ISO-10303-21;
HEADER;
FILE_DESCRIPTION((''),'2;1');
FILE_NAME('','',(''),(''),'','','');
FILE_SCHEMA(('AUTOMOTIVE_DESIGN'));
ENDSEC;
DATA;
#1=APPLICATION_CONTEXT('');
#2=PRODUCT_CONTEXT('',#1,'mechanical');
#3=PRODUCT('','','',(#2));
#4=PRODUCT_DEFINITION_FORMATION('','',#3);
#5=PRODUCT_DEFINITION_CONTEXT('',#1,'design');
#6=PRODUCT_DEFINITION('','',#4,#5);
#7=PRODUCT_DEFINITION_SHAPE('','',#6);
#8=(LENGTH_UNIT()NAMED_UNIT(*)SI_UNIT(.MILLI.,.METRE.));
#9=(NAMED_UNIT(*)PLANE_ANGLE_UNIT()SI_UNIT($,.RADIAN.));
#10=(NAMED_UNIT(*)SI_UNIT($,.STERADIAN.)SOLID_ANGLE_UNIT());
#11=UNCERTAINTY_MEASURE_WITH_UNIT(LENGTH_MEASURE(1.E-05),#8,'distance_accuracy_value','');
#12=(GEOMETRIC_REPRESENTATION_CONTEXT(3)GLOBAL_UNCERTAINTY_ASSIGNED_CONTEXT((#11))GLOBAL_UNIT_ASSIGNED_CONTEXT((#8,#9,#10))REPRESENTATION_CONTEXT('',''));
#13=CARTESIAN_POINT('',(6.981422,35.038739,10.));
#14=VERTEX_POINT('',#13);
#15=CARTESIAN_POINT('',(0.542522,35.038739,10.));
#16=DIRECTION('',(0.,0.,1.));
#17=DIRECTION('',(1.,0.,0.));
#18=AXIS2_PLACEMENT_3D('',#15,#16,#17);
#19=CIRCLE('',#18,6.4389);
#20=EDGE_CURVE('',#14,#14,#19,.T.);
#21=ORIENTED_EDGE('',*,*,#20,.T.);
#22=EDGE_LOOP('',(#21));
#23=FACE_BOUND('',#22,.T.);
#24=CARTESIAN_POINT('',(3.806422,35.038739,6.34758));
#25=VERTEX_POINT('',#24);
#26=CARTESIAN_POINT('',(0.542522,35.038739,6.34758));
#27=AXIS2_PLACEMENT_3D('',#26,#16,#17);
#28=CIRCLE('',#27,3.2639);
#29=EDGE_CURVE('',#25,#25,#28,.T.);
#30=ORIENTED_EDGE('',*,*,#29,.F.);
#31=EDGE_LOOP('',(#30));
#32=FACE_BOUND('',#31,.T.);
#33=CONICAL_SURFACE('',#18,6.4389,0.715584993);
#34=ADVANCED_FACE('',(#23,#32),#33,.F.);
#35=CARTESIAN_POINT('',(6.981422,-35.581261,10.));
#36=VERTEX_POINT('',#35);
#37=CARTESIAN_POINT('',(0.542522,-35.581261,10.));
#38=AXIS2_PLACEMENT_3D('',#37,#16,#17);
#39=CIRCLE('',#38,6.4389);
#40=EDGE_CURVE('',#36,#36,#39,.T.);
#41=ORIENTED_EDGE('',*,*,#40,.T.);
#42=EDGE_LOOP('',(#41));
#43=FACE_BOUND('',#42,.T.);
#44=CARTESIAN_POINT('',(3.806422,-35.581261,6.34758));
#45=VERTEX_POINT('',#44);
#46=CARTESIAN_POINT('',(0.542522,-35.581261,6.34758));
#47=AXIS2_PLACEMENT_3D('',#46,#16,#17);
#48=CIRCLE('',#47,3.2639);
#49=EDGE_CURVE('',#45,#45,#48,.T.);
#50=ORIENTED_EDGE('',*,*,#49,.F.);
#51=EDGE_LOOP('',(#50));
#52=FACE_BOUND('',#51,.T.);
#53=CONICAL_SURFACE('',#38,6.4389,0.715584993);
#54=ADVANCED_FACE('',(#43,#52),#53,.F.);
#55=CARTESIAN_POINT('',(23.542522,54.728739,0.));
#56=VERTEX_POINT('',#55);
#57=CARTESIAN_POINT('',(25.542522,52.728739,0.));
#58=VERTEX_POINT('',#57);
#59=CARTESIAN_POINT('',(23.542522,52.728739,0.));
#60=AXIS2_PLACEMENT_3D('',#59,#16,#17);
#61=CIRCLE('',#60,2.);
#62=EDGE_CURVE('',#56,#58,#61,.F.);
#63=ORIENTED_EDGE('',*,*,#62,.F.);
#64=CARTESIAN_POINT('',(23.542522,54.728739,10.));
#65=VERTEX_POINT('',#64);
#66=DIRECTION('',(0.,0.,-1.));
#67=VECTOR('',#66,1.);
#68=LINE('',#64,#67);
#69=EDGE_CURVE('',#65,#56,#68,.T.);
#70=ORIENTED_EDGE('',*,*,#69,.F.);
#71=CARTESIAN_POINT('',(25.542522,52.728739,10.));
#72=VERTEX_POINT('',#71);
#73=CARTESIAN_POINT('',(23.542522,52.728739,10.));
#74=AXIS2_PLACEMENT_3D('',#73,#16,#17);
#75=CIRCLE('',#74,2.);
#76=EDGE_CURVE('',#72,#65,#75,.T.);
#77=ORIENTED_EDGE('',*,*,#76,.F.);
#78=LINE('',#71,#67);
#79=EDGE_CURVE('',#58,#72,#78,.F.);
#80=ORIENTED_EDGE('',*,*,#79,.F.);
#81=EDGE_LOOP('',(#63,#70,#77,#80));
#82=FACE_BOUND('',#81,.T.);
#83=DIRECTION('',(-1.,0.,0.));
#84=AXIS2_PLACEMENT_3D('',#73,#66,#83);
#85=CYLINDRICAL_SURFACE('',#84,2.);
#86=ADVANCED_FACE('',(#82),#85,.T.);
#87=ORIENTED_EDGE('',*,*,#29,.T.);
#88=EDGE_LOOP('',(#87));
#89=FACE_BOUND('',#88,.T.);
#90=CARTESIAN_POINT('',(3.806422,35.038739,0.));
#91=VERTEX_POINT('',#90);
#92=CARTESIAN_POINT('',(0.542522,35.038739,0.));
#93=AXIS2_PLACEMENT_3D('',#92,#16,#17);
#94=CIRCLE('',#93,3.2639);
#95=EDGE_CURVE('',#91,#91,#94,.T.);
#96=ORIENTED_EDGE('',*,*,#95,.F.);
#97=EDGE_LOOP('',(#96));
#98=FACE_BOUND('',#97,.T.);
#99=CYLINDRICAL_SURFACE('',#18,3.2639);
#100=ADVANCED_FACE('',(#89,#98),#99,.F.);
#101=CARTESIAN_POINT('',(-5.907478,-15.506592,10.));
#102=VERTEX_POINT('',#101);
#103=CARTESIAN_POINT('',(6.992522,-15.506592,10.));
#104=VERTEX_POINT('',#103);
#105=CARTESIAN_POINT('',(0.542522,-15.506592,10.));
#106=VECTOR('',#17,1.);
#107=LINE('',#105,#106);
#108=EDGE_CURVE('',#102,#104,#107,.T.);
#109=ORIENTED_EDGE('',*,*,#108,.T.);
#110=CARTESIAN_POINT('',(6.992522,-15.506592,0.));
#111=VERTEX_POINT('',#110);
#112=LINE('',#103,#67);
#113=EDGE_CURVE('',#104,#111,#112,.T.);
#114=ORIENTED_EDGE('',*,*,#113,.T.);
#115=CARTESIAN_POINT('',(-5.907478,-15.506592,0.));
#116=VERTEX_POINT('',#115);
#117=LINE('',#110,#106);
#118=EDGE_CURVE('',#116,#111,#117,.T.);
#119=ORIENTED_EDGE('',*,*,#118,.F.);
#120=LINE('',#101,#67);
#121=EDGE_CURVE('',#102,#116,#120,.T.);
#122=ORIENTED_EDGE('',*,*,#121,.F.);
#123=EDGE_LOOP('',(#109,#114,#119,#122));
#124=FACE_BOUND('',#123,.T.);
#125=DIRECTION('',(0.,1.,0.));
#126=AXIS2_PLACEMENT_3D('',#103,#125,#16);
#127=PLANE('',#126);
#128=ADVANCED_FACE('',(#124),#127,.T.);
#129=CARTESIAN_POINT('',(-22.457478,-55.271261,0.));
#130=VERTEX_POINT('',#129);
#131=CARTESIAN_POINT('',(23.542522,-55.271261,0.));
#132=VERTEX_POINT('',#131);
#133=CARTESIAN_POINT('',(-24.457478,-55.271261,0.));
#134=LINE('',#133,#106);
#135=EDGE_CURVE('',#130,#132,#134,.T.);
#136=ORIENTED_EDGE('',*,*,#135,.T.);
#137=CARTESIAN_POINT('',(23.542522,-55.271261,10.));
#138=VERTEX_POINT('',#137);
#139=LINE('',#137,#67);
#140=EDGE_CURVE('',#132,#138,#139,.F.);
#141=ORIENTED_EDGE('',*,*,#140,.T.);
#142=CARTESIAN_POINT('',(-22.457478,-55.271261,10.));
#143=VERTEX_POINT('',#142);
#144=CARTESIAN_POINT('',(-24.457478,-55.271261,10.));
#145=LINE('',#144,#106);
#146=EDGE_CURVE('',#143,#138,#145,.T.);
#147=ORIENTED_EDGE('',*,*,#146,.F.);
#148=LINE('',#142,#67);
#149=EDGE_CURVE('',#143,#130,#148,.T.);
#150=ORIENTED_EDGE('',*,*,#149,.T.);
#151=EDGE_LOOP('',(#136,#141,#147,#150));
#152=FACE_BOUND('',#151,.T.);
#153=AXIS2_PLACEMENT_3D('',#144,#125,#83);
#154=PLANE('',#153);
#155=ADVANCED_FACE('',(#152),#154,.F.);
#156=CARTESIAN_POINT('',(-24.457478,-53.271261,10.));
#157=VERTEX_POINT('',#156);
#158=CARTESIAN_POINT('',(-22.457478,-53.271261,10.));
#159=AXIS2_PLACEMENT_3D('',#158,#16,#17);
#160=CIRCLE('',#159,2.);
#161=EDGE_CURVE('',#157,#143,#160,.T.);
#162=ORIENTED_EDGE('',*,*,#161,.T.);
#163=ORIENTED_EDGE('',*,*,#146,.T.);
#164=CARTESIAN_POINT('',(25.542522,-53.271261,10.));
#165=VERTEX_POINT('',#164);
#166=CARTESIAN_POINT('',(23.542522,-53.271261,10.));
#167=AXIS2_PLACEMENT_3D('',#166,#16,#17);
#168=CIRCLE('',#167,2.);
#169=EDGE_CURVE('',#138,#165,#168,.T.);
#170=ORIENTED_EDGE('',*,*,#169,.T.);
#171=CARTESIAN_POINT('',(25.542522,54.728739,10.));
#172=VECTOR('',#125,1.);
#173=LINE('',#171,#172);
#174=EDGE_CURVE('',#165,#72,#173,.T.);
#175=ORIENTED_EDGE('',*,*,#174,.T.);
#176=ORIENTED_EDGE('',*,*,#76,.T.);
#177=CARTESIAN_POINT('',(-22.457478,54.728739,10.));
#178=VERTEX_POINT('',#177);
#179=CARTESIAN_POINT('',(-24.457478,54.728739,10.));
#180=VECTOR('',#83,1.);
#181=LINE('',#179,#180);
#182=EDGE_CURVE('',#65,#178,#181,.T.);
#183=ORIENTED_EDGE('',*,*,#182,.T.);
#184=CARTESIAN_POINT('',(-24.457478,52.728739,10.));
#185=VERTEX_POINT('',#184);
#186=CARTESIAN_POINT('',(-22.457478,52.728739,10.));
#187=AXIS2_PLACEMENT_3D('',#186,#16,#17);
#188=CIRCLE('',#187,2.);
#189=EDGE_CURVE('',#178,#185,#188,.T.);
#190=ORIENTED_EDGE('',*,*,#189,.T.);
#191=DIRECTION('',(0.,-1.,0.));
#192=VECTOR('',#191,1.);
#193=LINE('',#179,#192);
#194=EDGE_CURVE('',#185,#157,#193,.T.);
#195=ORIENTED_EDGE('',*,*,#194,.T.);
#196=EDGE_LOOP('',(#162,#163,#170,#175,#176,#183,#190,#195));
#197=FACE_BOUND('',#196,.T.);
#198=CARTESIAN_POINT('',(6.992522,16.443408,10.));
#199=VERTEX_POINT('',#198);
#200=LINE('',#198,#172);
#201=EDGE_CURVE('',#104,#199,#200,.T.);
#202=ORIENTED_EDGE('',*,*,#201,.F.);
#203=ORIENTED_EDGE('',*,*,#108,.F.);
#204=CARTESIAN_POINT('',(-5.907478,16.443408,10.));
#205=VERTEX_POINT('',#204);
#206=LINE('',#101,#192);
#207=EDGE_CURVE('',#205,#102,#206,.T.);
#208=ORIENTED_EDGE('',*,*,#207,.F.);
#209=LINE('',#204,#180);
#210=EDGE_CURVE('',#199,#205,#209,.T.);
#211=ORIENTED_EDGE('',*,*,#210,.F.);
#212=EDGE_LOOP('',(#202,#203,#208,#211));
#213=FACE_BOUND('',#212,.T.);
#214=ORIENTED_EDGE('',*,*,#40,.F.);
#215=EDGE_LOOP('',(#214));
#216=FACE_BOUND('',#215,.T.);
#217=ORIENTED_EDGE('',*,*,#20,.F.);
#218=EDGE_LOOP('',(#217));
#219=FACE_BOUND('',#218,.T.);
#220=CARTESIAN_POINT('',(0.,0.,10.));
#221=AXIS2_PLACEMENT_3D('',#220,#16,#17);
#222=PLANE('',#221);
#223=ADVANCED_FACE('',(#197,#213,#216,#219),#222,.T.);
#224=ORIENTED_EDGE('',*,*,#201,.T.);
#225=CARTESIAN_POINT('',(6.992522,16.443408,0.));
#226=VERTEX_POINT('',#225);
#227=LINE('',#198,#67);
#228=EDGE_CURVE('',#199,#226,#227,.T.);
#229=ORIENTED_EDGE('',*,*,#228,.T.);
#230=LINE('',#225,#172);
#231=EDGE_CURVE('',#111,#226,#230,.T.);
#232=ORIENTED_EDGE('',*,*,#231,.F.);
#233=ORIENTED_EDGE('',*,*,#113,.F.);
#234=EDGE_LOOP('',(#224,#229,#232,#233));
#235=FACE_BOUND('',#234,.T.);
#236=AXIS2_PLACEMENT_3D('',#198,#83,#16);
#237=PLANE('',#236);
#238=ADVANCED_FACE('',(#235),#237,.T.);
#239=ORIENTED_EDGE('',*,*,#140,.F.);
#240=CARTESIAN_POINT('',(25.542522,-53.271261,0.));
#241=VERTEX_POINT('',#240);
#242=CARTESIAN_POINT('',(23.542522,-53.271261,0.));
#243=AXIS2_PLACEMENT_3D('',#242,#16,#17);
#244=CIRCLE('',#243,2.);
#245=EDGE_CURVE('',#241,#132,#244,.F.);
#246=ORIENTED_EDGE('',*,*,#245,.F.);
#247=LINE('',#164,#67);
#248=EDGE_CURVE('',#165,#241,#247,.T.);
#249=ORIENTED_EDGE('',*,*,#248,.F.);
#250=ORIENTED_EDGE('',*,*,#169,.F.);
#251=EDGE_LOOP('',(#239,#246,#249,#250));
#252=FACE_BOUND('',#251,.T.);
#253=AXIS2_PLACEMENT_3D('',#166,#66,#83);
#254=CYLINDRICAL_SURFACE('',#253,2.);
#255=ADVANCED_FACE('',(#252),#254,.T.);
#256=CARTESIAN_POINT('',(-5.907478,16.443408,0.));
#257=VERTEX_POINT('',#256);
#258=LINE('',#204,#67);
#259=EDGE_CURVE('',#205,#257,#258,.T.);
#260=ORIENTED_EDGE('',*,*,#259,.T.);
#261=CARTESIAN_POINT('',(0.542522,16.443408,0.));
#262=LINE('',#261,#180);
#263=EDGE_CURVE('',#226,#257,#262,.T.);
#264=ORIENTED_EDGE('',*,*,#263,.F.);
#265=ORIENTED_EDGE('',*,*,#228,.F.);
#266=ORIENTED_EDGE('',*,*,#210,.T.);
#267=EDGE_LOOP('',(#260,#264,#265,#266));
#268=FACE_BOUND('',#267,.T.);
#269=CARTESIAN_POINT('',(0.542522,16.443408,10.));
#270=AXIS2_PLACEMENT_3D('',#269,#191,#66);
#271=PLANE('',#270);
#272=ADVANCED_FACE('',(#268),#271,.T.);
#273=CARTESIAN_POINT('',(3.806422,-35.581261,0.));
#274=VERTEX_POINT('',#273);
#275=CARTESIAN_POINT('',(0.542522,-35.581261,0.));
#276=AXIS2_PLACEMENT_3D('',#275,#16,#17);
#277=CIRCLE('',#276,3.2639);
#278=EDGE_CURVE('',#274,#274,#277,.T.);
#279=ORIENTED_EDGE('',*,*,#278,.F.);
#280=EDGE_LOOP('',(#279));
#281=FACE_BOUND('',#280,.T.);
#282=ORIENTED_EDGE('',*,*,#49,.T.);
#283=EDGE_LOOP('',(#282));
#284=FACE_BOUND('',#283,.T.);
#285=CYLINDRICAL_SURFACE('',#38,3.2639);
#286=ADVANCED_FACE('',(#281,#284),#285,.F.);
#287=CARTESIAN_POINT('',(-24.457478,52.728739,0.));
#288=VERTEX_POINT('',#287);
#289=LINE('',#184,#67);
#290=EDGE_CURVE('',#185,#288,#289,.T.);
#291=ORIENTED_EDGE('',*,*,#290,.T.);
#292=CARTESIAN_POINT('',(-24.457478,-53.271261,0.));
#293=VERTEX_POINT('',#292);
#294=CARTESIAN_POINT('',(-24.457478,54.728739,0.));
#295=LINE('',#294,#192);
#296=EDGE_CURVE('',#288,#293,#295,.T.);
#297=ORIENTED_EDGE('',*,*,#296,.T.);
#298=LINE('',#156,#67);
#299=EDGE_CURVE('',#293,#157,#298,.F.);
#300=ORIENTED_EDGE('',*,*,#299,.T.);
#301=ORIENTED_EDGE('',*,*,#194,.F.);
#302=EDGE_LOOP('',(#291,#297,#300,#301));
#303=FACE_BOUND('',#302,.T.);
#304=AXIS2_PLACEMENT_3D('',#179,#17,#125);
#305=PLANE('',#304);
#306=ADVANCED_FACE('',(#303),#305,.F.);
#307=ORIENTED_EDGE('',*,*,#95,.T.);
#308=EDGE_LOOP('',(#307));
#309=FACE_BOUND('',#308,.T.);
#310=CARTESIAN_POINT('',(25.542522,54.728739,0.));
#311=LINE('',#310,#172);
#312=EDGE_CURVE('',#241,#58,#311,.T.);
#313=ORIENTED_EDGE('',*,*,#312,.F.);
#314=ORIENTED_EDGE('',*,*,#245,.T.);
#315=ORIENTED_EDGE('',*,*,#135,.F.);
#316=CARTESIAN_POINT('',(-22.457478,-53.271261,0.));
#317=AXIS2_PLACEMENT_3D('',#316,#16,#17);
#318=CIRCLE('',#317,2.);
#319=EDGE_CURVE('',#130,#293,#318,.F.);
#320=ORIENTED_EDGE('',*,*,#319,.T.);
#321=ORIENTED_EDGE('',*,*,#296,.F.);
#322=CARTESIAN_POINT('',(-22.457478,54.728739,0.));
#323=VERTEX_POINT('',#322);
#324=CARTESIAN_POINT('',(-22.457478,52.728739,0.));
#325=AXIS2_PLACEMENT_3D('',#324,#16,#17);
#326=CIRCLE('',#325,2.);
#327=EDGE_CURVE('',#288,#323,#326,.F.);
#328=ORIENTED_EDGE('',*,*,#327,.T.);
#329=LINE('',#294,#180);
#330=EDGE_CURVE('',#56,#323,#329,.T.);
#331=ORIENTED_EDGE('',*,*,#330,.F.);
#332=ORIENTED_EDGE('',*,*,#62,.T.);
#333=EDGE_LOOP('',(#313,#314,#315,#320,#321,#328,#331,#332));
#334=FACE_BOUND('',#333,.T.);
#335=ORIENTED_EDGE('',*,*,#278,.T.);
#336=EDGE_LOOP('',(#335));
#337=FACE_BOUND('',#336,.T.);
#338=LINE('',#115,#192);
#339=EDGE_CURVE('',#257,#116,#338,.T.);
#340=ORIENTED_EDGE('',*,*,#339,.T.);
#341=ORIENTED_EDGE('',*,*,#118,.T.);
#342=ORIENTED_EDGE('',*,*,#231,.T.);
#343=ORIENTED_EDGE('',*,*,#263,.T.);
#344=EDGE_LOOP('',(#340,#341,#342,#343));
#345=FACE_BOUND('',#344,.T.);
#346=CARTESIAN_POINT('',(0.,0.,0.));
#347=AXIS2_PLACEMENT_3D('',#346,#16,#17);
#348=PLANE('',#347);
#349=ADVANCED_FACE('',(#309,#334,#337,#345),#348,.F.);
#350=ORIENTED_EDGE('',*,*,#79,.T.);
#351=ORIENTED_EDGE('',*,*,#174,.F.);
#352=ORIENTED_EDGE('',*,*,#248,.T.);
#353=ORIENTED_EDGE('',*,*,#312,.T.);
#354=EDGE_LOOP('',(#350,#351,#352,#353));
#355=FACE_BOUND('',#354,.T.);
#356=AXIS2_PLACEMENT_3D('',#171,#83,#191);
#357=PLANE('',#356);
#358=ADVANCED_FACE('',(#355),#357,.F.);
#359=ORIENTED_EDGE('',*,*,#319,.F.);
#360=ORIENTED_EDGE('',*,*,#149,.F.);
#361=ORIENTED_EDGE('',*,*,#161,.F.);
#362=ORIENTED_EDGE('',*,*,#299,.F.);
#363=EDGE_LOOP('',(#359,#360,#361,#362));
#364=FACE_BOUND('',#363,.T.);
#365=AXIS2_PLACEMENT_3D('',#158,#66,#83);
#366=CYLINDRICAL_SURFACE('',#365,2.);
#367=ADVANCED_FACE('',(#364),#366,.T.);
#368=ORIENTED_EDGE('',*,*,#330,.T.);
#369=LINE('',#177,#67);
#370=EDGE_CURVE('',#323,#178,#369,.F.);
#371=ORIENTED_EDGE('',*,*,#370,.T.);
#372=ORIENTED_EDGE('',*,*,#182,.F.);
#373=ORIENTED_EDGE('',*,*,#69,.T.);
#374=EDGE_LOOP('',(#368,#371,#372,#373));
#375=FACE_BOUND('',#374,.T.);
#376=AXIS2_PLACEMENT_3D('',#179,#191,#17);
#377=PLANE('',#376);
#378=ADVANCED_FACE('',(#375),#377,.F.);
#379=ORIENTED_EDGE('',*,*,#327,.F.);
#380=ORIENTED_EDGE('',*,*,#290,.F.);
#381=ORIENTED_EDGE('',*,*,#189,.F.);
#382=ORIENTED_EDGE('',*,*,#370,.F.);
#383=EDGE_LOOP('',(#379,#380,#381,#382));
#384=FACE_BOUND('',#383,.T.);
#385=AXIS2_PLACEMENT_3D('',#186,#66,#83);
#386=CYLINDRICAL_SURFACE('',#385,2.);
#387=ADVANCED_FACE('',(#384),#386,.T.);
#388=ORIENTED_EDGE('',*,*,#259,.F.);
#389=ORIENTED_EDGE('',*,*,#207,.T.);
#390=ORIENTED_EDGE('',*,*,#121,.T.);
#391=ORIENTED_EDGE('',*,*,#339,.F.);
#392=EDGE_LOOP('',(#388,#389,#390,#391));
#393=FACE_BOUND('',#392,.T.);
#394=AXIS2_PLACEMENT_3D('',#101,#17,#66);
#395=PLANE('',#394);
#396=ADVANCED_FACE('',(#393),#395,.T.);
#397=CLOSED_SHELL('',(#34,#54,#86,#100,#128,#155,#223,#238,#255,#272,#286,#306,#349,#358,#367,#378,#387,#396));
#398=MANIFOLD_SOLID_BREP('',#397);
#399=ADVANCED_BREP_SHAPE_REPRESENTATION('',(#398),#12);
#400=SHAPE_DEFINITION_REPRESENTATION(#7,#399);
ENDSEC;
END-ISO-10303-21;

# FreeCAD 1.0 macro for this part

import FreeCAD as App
import Part
import Sketcher
from FreeCAD import Vector
Q = App.Units.Quantity


def edges_at(feature, points):
    """Names of the edges that pass closest to the given points."""
    edges = feature.Shape.Edges
    near = lambda p: min(range(len(edges)), key=lambda i: edges[i].distToShape(Part.Vertex(*p))[0])
    return sorted({f"Edge{near(p) + 1}" for p in points})


def add_polygon(sketch, points):
    """Adds a closed chain of lines whose ends are joined by coincident constraints."""
    first, n = sketch.GeometryCount, len(points)
    for a, b in zip(points, points[1:] + points[:1]):
        sketch.addGeometry(Part.LineSegment(App.Vector(*a, 0), App.Vector(*b, 0)), False)
    for i in range(n):
        sketch.addConstraint(Sketcher.Constraint("Coincident", first + i, 2, first + (i + 1) % n, 1))

doc = App.newDocument("Part")
body = doc.addObject("PartDesign::Body", "Body")

# Sketch on XY plane
sketch1 = doc.addObject("Sketcher::SketchObject", "Sketch")
body.addObject(sketch1)
sketch1.AttachmentSupport = (doc.XY_Plane, [""])
sketch1.MapMode = "FlatFace"
add_polygon(sketch1, [(-24, 55), (-24, -55), (26, -55), (26, 55)])  # lines 0-3
add_polygon(sketch1, [(-6, 16), (7, 16), (7, -16), (-6, -16)])  # lines 4-7
sketch1.addConstraint([
    Sketcher.Constraint("Vertical", 0),
    Sketcher.Constraint("Horizontal", 1),
    Sketcher.Constraint("Vertical", 2),
    Sketcher.Constraint("Horizontal", 3),
    Sketcher.Constraint("Horizontal", 4),
    Sketcher.Constraint("Vertical", 5),
    Sketcher.Constraint("Horizontal", 6),
    Sketcher.Constraint("Vertical", 7),
    Sketcher.Constraint("DistanceX", 1, 1, 1, 2, Q("50 mm")),
    Sketcher.Constraint("DistanceY", 0, 2, 0, 1, Q("110 mm")),
    Sketcher.Constraint("DistanceX", 4, 1, 4, 2, Q("12.9 mm")),
    Sketcher.Constraint("DistanceY", 5, 2, 5, 1, Q("31.95 mm")),
    Sketcher.Constraint("DistanceX", 4, 2, 2, 2, Q("18.55 mm")),
    Sketcher.Constraint("DistanceY", 0, 2, -1, 1, Q("55.271261 mm")),
    Sketcher.Constraint("DistanceY", -1, 1, 4, 2, Q("16.443408 mm")),
    Sketcher.Constraint("DistanceX", 0, 2, -1, 1, Q("24.457478 mm")),
])
pad1 = doc.addObject("PartDesign::Pad", "Pad")
body.addObject(pad1)
pad1.Profile = sketch1
pad1.Length = 10

# Sketch on XY plane
sketch2 = doc.addObject("Sketcher::SketchObject", "Sketch001")
body.addObject(sketch2)
sketch2.AttachmentSupport = (doc.XY_Plane, [""])
sketch2.MapMode = "FlatFace"
sketch2.AttachmentOffset = App.Placement(Vector(0, 0, 10), App.Rotation())
sketch2.addGeometry([
    Part.Circle(Vector(0.5, -35.6, 0), Vector(0, 0, 1), 3.3),
    Part.Circle(Vector(0.5, 35, 0), Vector(0, 0, 1), 3.3),
], False)
sketch2.addConstraint([
    Sketcher.Constraint("Equal", 0, 1),
    Sketcher.Constraint("Vertical", 0, 3, 1, 3),
    Sketcher.Constraint("Diameter", 0, Q("6.5278 mm")),
    Sketcher.Constraint("DistanceY", 0, 3, 1, 3, Q("70.62 mm")),
    Sketcher.Constraint("DistanceY", 0, 3, -1, 1, Q("35.581261 mm")),
    Sketcher.Constraint("DistanceX", -1, 1, 0, 3, Q("0.542522 mm")),
])
doc.recompute()
hole = doc.addObject("PartDesign::Hole", "Hole")
body.addObject(hole)
hole.Profile = sketch2
hole.ThreadType = "None"
hole.Diameter = 6.5278
hole.DepthType = "ThroughAll"
hole.HoleCutType = "Countersink"
hole.HoleCutDiameter = 12.8778
hole.HoleCutCountersinkAngle = 82
doc.recompute()

fillet = doc.addObject("PartDesign::Fillet", "Fillet")
body.addObject(fillet)
fillet.Base = (hole, edges_at(hole, [
    (-24.457, 54.729, 5),
    (25.543, 54.729, 5),
    (25.543, -55.271, 5),
    (-24.457, -55.271, 5),
]))
fillet.Radius = 2

doc.recompute()
